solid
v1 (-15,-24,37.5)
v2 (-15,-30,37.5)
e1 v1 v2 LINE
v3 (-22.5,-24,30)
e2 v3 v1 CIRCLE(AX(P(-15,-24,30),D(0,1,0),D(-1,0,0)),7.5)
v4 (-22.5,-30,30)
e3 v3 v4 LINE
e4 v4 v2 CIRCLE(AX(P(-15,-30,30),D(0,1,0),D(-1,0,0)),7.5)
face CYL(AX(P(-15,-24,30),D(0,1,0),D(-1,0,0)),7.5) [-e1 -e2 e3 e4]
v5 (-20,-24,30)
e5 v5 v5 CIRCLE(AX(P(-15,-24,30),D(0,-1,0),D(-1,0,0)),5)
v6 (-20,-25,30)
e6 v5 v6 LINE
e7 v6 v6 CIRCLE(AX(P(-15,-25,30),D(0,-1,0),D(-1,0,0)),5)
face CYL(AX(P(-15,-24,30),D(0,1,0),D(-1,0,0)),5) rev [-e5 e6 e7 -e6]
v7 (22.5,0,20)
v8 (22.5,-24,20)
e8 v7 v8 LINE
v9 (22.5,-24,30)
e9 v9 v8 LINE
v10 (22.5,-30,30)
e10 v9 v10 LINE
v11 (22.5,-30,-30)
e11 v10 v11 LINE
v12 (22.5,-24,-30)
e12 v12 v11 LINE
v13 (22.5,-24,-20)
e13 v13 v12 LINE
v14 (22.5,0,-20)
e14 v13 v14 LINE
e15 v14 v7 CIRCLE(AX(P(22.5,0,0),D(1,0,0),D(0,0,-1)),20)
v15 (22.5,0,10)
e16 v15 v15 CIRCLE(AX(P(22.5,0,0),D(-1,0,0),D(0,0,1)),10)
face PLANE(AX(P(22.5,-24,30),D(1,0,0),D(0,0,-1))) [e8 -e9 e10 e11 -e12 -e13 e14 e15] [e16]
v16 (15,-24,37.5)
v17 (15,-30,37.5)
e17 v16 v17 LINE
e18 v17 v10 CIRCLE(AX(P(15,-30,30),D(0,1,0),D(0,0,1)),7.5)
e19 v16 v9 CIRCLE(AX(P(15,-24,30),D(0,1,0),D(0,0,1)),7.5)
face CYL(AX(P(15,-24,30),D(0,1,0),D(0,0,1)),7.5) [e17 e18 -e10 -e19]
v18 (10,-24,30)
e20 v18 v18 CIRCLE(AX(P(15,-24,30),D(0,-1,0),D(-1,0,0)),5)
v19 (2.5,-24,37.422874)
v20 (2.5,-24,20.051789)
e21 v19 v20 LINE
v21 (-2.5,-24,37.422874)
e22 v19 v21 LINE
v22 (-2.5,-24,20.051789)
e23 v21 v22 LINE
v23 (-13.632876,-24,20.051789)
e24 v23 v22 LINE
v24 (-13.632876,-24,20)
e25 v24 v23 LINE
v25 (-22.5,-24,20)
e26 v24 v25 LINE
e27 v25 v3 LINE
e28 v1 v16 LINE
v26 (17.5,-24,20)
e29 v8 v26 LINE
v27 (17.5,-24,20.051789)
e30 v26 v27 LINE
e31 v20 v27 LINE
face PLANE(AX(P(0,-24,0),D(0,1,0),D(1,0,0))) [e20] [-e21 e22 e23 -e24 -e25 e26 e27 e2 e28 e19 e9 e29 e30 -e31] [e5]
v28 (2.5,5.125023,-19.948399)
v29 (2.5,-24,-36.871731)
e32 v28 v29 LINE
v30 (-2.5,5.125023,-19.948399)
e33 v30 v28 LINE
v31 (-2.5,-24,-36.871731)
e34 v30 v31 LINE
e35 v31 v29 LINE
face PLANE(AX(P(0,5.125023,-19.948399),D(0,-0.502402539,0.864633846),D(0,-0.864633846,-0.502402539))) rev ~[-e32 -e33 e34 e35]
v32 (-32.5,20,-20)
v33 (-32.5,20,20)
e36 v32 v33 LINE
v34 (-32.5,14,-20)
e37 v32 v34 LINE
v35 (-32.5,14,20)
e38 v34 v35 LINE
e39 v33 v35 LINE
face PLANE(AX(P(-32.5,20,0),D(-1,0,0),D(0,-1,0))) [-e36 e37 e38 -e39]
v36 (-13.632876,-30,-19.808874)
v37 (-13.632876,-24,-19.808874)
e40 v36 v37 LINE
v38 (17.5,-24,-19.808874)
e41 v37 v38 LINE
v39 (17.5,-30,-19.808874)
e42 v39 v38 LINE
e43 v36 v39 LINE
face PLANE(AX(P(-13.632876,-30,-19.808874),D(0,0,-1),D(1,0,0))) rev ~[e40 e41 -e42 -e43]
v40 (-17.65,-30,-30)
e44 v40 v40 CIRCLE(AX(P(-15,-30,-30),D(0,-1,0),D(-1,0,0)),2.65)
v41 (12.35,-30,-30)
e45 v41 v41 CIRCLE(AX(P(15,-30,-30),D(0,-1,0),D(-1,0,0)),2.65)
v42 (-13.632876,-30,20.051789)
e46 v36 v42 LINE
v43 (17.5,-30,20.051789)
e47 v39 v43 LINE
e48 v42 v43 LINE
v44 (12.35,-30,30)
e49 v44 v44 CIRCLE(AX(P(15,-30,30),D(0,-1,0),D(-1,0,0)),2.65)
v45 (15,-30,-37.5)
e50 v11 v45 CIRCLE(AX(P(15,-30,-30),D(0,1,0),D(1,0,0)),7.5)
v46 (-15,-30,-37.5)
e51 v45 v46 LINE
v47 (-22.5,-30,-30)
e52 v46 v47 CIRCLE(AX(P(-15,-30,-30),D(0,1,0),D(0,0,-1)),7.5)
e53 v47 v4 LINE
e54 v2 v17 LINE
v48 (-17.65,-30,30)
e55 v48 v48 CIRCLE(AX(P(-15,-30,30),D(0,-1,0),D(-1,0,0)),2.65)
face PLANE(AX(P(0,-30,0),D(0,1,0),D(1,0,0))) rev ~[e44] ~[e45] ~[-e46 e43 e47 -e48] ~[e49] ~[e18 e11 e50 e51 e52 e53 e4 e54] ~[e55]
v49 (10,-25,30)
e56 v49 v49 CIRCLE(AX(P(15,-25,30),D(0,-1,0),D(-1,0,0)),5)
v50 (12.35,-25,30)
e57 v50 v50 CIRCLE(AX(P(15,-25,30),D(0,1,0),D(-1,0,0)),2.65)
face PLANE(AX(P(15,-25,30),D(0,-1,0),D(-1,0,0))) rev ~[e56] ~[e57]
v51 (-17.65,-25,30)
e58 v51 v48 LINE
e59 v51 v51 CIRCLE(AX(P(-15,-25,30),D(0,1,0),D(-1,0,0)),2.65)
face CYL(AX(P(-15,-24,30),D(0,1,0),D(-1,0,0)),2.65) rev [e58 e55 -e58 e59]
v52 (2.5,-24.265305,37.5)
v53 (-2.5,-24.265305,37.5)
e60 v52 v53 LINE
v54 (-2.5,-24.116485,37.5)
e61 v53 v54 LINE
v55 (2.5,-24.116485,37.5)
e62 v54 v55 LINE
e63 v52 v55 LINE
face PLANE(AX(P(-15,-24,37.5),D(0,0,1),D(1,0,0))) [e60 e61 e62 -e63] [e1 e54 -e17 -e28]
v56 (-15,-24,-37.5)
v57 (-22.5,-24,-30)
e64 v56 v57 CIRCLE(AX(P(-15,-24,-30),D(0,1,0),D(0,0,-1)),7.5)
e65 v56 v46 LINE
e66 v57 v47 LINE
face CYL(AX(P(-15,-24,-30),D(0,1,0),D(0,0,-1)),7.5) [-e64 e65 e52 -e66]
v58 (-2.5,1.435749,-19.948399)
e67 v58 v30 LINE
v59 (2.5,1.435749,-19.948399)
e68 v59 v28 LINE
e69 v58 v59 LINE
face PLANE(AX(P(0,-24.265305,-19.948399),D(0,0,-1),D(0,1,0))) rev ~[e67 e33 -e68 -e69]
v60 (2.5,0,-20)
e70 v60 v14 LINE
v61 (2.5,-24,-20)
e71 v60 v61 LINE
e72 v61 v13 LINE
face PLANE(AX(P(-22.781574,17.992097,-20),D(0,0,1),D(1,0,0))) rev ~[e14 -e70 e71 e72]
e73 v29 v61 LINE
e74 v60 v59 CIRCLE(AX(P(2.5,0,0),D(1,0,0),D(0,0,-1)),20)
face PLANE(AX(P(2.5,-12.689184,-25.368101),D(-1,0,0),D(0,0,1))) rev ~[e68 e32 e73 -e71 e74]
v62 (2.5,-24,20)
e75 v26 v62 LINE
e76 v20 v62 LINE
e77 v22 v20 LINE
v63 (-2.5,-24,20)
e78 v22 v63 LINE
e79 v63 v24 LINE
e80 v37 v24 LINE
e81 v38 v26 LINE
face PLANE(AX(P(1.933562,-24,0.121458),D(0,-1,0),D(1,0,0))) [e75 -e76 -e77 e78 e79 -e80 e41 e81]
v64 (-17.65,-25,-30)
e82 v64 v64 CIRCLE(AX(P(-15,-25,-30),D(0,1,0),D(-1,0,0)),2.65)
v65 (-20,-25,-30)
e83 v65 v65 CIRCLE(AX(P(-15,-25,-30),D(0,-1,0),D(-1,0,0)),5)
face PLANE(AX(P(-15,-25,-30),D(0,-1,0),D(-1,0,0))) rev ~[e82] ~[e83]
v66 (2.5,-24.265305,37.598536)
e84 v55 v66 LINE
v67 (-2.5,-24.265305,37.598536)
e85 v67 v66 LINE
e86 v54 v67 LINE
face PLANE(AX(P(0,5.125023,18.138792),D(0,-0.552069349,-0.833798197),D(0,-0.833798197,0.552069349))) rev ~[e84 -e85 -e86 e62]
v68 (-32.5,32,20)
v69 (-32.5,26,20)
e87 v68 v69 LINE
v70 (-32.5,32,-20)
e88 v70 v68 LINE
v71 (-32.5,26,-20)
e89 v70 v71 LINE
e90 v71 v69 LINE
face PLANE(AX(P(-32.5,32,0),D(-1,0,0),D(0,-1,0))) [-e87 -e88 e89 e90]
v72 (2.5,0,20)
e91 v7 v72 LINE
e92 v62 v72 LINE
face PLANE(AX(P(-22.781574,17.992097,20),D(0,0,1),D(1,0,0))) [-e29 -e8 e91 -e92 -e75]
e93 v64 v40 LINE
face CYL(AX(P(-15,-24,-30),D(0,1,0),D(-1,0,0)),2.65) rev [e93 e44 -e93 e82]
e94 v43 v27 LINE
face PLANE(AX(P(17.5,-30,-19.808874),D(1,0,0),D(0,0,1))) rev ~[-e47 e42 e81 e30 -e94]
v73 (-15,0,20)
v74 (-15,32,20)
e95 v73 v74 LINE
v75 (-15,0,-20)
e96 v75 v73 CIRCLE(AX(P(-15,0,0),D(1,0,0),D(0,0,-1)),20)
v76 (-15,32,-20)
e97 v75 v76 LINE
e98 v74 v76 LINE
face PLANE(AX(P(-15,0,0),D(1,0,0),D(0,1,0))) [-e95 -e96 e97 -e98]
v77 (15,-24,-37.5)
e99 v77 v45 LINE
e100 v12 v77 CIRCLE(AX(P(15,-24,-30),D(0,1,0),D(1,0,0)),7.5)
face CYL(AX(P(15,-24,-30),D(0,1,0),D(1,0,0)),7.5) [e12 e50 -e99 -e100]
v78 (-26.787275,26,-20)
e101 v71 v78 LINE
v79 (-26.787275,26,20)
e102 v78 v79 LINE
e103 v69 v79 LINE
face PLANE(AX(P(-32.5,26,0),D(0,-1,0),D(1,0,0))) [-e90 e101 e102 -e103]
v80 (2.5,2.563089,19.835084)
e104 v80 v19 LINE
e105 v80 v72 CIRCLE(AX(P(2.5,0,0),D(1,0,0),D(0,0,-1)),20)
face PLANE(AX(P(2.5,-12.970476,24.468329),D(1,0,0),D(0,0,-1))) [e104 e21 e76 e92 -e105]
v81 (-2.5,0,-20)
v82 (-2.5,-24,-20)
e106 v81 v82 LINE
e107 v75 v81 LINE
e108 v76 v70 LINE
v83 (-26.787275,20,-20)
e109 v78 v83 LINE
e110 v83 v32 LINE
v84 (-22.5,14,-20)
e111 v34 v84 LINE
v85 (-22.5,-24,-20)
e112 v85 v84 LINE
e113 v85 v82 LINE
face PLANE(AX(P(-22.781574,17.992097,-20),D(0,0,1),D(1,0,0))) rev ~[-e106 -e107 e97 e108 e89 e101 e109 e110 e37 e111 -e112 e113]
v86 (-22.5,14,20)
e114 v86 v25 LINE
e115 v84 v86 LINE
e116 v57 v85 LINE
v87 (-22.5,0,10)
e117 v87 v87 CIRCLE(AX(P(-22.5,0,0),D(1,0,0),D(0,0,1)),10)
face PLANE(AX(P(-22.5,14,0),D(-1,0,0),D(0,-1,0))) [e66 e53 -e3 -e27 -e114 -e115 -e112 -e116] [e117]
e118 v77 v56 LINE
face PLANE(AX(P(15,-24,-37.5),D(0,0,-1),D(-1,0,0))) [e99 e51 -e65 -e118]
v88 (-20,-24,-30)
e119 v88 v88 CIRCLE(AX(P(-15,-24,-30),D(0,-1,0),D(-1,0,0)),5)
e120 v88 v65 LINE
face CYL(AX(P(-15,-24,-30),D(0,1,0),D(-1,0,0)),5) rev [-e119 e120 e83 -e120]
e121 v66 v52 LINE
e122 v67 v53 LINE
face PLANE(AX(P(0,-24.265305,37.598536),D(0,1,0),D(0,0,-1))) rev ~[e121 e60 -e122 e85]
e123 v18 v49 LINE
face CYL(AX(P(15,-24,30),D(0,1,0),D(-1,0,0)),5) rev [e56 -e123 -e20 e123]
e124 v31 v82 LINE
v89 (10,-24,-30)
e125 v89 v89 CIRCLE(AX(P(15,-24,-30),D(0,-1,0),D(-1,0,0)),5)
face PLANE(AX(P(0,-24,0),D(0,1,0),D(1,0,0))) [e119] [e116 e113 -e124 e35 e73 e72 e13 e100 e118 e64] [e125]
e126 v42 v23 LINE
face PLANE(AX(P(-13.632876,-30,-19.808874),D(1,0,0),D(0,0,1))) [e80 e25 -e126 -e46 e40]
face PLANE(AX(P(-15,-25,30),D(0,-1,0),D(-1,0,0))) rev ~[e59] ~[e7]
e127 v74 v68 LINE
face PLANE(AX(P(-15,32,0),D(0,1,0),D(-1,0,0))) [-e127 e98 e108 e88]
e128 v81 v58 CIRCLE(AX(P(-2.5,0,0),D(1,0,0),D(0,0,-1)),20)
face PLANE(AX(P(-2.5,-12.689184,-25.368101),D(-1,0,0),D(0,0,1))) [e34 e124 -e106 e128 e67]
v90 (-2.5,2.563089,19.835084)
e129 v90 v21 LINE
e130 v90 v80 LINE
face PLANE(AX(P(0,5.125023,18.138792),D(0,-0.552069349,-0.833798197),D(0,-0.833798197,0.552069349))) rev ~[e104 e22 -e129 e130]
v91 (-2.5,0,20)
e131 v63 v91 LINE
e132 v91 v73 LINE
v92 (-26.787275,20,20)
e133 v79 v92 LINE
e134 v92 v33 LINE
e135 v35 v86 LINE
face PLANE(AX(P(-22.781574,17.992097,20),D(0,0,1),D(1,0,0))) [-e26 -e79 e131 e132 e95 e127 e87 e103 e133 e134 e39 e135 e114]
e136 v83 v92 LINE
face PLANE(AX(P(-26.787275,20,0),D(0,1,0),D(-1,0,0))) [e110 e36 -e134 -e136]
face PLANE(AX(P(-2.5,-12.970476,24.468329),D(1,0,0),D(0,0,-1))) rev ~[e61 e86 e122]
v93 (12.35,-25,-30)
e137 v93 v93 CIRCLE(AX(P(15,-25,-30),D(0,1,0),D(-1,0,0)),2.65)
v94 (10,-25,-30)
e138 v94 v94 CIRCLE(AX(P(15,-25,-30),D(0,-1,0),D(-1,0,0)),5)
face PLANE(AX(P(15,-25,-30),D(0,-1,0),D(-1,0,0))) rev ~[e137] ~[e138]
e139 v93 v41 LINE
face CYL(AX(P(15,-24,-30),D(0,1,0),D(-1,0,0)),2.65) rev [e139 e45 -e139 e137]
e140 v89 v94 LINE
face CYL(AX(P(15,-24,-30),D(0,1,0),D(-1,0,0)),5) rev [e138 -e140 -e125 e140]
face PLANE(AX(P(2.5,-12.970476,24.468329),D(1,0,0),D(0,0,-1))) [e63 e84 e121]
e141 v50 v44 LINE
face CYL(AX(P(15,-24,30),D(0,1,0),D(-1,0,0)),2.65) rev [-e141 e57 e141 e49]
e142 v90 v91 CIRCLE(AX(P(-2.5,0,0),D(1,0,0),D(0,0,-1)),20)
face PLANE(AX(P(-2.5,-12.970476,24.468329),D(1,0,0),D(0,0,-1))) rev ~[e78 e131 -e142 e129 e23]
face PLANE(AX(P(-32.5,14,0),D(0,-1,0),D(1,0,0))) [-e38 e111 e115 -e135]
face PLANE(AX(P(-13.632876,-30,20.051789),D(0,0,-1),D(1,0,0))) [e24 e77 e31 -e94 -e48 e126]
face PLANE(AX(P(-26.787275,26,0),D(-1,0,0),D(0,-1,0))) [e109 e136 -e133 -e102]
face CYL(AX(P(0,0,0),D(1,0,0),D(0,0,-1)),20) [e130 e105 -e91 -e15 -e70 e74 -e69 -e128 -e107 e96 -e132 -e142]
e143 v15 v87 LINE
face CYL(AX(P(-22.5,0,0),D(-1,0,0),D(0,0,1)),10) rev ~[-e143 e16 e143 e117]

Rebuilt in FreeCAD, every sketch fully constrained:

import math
import FreeCAD as App
import Part
import Sketcher
Q = App.Units.Quantity

doc = App.newDocument("Part")
body = doc.addObject("PartDesign::Body", "Body")

# Sketch on YZ plane
sketch1 = body.newObject("Sketcher::SketchObject", "Sketch")
sketch1.AttachmentSupport = (doc.getObject("YZ_Plane"), [""])
sketch1.MapMode = "FlatFace"
sketch1.addGeometry([
    Part.LineSegment(App.Vector(-24, 20, 0), App.Vector(-24, -20, 0)),  # 0
    Part.LineSegment(App.Vector(-24, -20, 0), App.Vector(0, -20, 0)),  # 1
    Part.ArcOfCircle(Part.Circle(App.Vector(0, 0, 0), App.Vector(0, 0, 1), 20), math.radians(-90), math.radians(90)),  # 2
    Part.LineSegment(App.Vector(0, 20, 0), App.Vector(-24, 20, 0)),  # 3
    Part.Circle(App.Vector(0, 0, 0), App.Vector(0, 0, 1), 10),  # 4
], False)
sketch1.addConstraint([
    Sketcher.Constraint("Coincident", 0, 2, 1, 1),
    Sketcher.Constraint("Tangent", 1, 2, 2, 1),
    Sketcher.Constraint("Tangent", 2, 2, 3, 1),
    Sketcher.Constraint("Coincident", 3, 2, 0, 1),
    Sketcher.Constraint("Vertical", 0),
    Sketcher.Constraint("Horizontal", 1),
    Sketcher.Constraint("Horizontal", 3),
    Sketcher.Constraint("Coincident", 2, 3, -1, 1),
    Sketcher.Constraint("Coincident", 4, 3, -1, 1),
    Sketcher.Constraint("Diameter", 4, Q("20 mm")),
    Sketcher.Constraint("Radius", 2, Q("20 mm")),
    Sketcher.Constraint("DistanceX", 1, 1, 1, 2, Q("24 mm")),
])
pad1 = body.newObject("PartDesign::Pad", "Pad")
pad1.Profile = sketch1
pad1.Length = 45
pad1.Midplane = True

# Sketch on XZ plane
sketch2 = body.newObject("Sketcher::SketchObject", "Sketch001")
sketch2.AttachmentSupport = (doc.getObject("XZ_Plane"), [""])
sketch2.MapMode = "FlatFace"
sketch2.AttachmentOffset = App.Placement(App.Vector(0, 0, 24), App.Rotation())
sketch2.addGeometry([
    Part.LineSegment(App.Vector(-22.5, 30, 0), App.Vector(-22.5, -30, 0)),  # 0
    Part.ArcOfCircle(Part.Circle(App.Vector(-15, -30, 0), App.Vector(0, 0, 1), 7.5), math.radians(180), math.radians(270)),  # 1
    Part.LineSegment(App.Vector(-15, -37.5, 0), App.Vector(15, -37.5, 0)),  # 2
    Part.ArcOfCircle(Part.Circle(App.Vector(15, -30, 0), App.Vector(0, 0, 1), 7.5), math.radians(-90), math.radians(0)),  # 3
    Part.LineSegment(App.Vector(22.5, -30, 0), App.Vector(22.5, 30, 0)),  # 4
    Part.ArcOfCircle(Part.Circle(App.Vector(15, 30, 0), App.Vector(0, 0, 1), 7.5), math.radians(0), math.radians(90)),  # 5
    Part.LineSegment(App.Vector(15, 37.5, 0), App.Vector(-15, 37.5, 0)),  # 6
    Part.ArcOfCircle(Part.Circle(App.Vector(-15, 30, 0), App.Vector(0, 0, 1), 7.5), math.radians(90), math.radians(180)),  # 7
    Part.Circle(App.Vector(-15, 30, 0), App.Vector(0, 0, 1), 2.6),  # 8
    Part.Circle(App.Vector(15, 30, 0), App.Vector(0, 0, 1), 2.6),  # 9
    Part.Circle(App.Vector(-15, -30, 0), App.Vector(0, 0, 1), 2.6),  # 10
    Part.Circle(App.Vector(15, -30, 0), App.Vector(0, 0, 1), 2.6),  # 11
], False)
sketch2.addConstraint([
    Sketcher.Constraint("Tangent", 0, 2, 1, 1),
    Sketcher.Constraint("Tangent", 1, 2, 2, 1),
    Sketcher.Constraint("Tangent", 2, 2, 3, 1),
    Sketcher.Constraint("Tangent", 3, 2, 4, 1),
    Sketcher.Constraint("Tangent", 4, 2, 5, 1),
    Sketcher.Constraint("Tangent", 5, 2, 6, 1),
    Sketcher.Constraint("Tangent", 6, 2, 7, 1),
    Sketcher.Constraint("Tangent", 7, 2, 0, 1),
    Sketcher.Constraint("Vertical", 0),
    Sketcher.Constraint("Horizontal", 2),
    Sketcher.Constraint("Vertical", 4),
    Sketcher.Constraint("Horizontal", 6),
    Sketcher.Constraint("Coincident", 8, 3, 7, 3),
    Sketcher.Constraint("Coincident", 9, 3, 5, 3),
    Sketcher.Constraint("Coincident", 10, 3, 1, 3),
    Sketcher.Constraint("Coincident", 11, 3, 3, 3),
    Sketcher.Constraint("Equal", 1, 3),
    Sketcher.Constraint("Equal", 3, 5),
    Sketcher.Constraint("Equal", 5, 7),
    Sketcher.Constraint("Equal", 8, 9),
    Sketcher.Constraint("Equal", 9, 10),
    Sketcher.Constraint("Equal", 10, 11),
    Sketcher.Constraint("Symmetric", 1, 3, 5, 3, -1, 1),
    Sketcher.Constraint("Diameter", 8, Q("5.3 mm")),
    Sketcher.Constraint("Radius", 1, Q("7.5 mm")),
    Sketcher.Constraint("DistanceX", 2, 1, 2, 2, Q("30 mm")),
    Sketcher.Constraint("DistanceY", 0, 2, 0, 1, Q("60 mm")),
])
pad2 = body.newObject("PartDesign::Pad", "Pad001")
pad2.Profile = sketch2
pad2.Length = 6

# Sketch on XZ plane
sketch3 = body.newObject("Sketcher::SketchObject", "Sketch002")
sketch3.AttachmentSupport = (doc.getObject("XZ_Plane"), [""])
sketch3.MapMode = "FlatFace"
sketch3.AttachmentOffset = App.Placement(App.Vector(0, 0, 24), App.Rotation())
sketch3.addGeometry([
    Part.Circle(App.Vector(-15, -30, 0), App.Vector(0, 0, 1), 5),
    Part.Circle(App.Vector(15, -30, 0), App.Vector(0, 0, 1), 5),
    Part.Circle(App.Vector(-15, 30, 0), App.Vector(0, 0, 1), 5),
    Part.Circle(App.Vector(15, 30, 0), App.Vector(0, 0, 1), 5),
], False)
sketch3.addConstraint([
    Sketcher.Constraint("Equal", 0, 1),
    Sketcher.Constraint("Equal", 1, 2),
    Sketcher.Constraint("Equal", 2, 3),
    Sketcher.Constraint("Symmetric", 1, 3, 2, 3, -1, 1),
    Sketcher.Constraint("Symmetric", 0, 3, 3, 3, -1, 1),
    Sketcher.Constraint("Symmetric", 0, 3, 1, 3, -2),
    Sketcher.Constraint("Diameter", 0, Q("10 mm")),
    Sketcher.Constraint("DistanceX", 0, 3, -1, 1, Q("15 mm")),
    Sketcher.Constraint("DistanceY", 0, 3, -1, 1, Q("30 mm")),
])
pocket1 = body.newObject("PartDesign::Pocket", "Pocket")
pocket1.Profile = sketch3
pocket1.Length = 1
pocket1.Reversed = True

# Sketch on XY plane
sketch4 = body.newObject("Sketcher::SketchObject", "Sketch003")
sketch4.AttachmentSupport = (doc.getObject("XY_Plane"), [""])
sketch4.MapMode = "FlatFace"
sketch4.addGeometry([
    Part.LineSegment(App.Vector(-15, 32, 0), App.Vector(-32, 32, 0)),  # 0
    Part.LineSegment(App.Vector(-32, 32, 0), App.Vector(-32, 26, 0)),  # 1
    Part.LineSegment(App.Vector(-32, 26, 0), App.Vector(-27, 26, 0)),  # 2
    Part.LineSegment(App.Vector(-27, 26, 0), App.Vector(-27, 20, 0)),  # 3
    Part.LineSegment(App.Vector(-27, 20, 0), App.Vector(-32, 20, 0)),  # 4
    Part.LineSegment(App.Vector(-32, 20, 0), App.Vector(-32, 14, 0)),  # 5
    Part.LineSegment(App.Vector(-32, 14, 0), App.Vector(-22, 14, 0)),  # 6
    Part.LineSegment(App.Vector(-22, 14, 0), App.Vector(-22, 0, 0)),  # 7
    Part.LineSegment(App.Vector(-22, 0, 0), App.Vector(-15, 0, 0)),  # 8
    Part.LineSegment(App.Vector(-15, 0, 0), App.Vector(-15, 32, 0)),  # 9
], False)
sketch4.addConstraint([
    Sketcher.Constraint("Coincident", 0, 2, 1, 1),
    Sketcher.Constraint("Coincident", 1, 2, 2, 1),
    Sketcher.Constraint("Coincident", 2, 2, 3, 1),
    Sketcher.Constraint("Coincident", 3, 2, 4, 1),
    Sketcher.Constraint("Coincident", 4, 2, 5, 1),
    Sketcher.Constraint("Coincident", 5, 2, 6, 1),
    Sketcher.Constraint("Coincident", 6, 2, 7, 1),
    Sketcher.Constraint("Coincident", 7, 2, 8, 1),
    Sketcher.Constraint("Coincident", 8, 2, 9, 1),
    Sketcher.Constraint("Coincident", 9, 2, 0, 1),
    Sketcher.Constraint("Horizontal", 0),
    Sketcher.Constraint("Vertical", 1),
    Sketcher.Constraint("Horizontal", 2),
    Sketcher.Constraint("Vertical", 3),
    Sketcher.Constraint("Horizontal", 4),
    Sketcher.Constraint("Vertical", 5),
    Sketcher.Constraint("Horizontal", 6),
    Sketcher.Constraint("Vertical", 7),
    Sketcher.Constraint("Horizontal", 8),
    Sketcher.Constraint("Vertical", 9),
    Sketcher.Constraint("PointOnObject", 7, 2, -1),
    Sketcher.Constraint("Vertical", 1, 2, 4, 2),
    Sketcher.Constraint("Equal", 1, 3),
    Sketcher.Constraint("Equal", 3, 5),
    Sketcher.Constraint("DistanceX", 6, 1, 6, 2, Q("10 mm")),
    Sketcher.Constraint("DistanceY", 1, 2, 1, 1, Q("6 mm")),
    Sketcher.Constraint("DistanceY", 7, 2, 7, 1, Q("14 mm")),
    Sketcher.Constraint("DistanceX", 0, 2, 0, 1, Q("17.5 mm")),
    Sketcher.Constraint("DistanceX", 8, 2, -1, 1, Q("15 mm")),
    Sketcher.Constraint("DistanceX", 2, 1, 2, 2, Q("5.712725 mm")),
])
pad3 = body.newObject("PartDesign::Pad", "Pad002")
pad3.Profile = sketch4
pad3.Length = 40
pad3.Midplane = True

# Sketch on YZ plane
sketch5 = body.newObject("Sketcher::SketchObject", "Sketch004")
sketch5.AttachmentSupport = (doc.getObject("YZ_Plane"), [""])
sketch5.MapMode = "FlatFace"
sketch5.AttachmentOffset = App.Placement(App.Vector(0, 0, -22.5), App.Rotation())
sketch5.addGeometry(Part.Circle(App.Vector(0, 0, 0), App.Vector(0, 0, 1), 10), False)
sketch5.addConstraint([
    Sketcher.Constraint("Coincident", 0, 3, -1, 1),
    Sketcher.Constraint("Diameter", 0, Q("20 mm")),
])
pocket2 = body.newObject("PartDesign::Pocket", "Pocket001")
pocket2.Profile = sketch5
pocket2.Length = 45
pocket2.Reversed = True

# Sketch on YZ plane
sketch6 = body.newObject("Sketcher::SketchObject", "Sketch005")
sketch6.AttachmentSupport = (doc.getObject("YZ_Plane"), [""])
sketch6.MapMode = "FlatFace"
sketch6.addGeometry([
    Part.LineSegment(App.Vector(5, 18, 0), App.Vector(-24, 38, 0)),  # 0
    Part.LineSegment(App.Vector(-24, 38, 0), App.Vector(-24, 18, 0)),  # 1
    Part.LineSegment(App.Vector(-24, 18, 0), App.Vector(5, 18, 0)),  # 2
    Part.LineSegment(App.Vector(-24, -20, 0), App.Vector(-24, -37, 0)),  # 3
    Part.LineSegment(App.Vector(-24, -37, 0), App.Vector(5, -20, 0)),  # 4
    Part.LineSegment(App.Vector(5, -20, 0), App.Vector(-24, -20, 0)),  # 5
], False)
sketch6.addConstraint([
    Sketcher.Constraint("Coincident", 0, 2, 1, 1),
    Sketcher.Constraint("Coincident", 1, 2, 2, 1),
    Sketcher.Constraint("Coincident", 2, 2, 0, 1),
    Sketcher.Constraint("Coincident", 3, 2, 4, 1),
    Sketcher.Constraint("Coincident", 4, 2, 5, 1),
    Sketcher.Constraint("Coincident", 5, 2, 3, 1),
    Sketcher.Constraint("Vertical", 1),
    Sketcher.Constraint("Horizontal", 2),
    Sketcher.Constraint("Vertical", 3),
    Sketcher.Constraint("Horizontal", 5),
    Sketcher.Constraint("Vertical", 1, 2, 3, 2),
    Sketcher.Constraint("Vertical", 2, 2, 4, 2),
    Sketcher.Constraint("DistanceX", 2, 1, 2, 2, Q("29.390329 mm")),
    Sketcher.Constraint("DistanceY", 3, 2, 3, 1, Q("17.07749 mm")),
    Sketcher.Constraint("DistanceY", 4, 2, -1, 1, Q("19.948399 mm")),
    Sketcher.Constraint("Distance", 0, Q("35.248732 mm")),
    Sketcher.Constraint("DistanceY", -1, 1, 1, 2, Q("18.138792 mm")),
    Sketcher.Constraint("DistanceX", 0, 2, -1, 1, Q("24.265305 mm")),
])
pad4 = body.newObject("PartDesign::Pad", "Pad003")
pad4.Profile = sketch6
pad4.Length = 5
pad4.Midplane = True

# Sketch on XZ plane
sketch7 = body.newObject("Sketcher::SketchObject", "Sketch006")
sketch7.AttachmentSupport = (doc.getObject("XZ_Plane"), [""])
sketch7.MapMode = "FlatFace"
sketch7.AttachmentOffset = App.Placement(App.Vector(0, 0, 30), App.Rotation())
sketch7.addGeometry([
    Part.LineSegment(App.Vector(-14, 20, 0), App.Vector(-14, -20, 0)),
    Part.LineSegment(App.Vector(-14, -20, 0), App.Vector(18, -20, 0)),
    Part.LineSegment(App.Vector(18, -20, 0), App.Vector(18, 20, 0)),
    Part.LineSegment(App.Vector(18, 20, 0), App.Vector(-14, 20, 0)),
], False)
sketch7.addConstraint([
    Sketcher.Constraint("Coincident", 0, 2, 1, 1),
    Sketcher.Constraint("Coincident", 1, 2, 2, 1),
    Sketcher.Constraint("Coincident", 2, 2, 3, 1),
    Sketcher.Constraint("Coincident", 3, 2, 0, 1),
    Sketcher.Constraint("Vertical", 0),
    Sketcher.Constraint("Horizontal", 1),
    Sketcher.Constraint("Vertical", 2),
    Sketcher.Constraint("Horizontal", 3),
    Sketcher.Constraint("DistanceX", -1, 1, 1, 2, Q("17.5 mm")),
    Sketcher.Constraint("DistanceX", 1, 1, 1, 2, Q("31.132876 mm")),
    Sketcher.Constraint("DistanceY", 0, 2, 0, 1, Q("39.860663 mm")),
    Sketcher.Constraint("DistanceY", -1, 1, 2, 2, Q("20.051789 mm")),
])
pocket3 = body.newObject("PartDesign::Pocket", "Pocket002")
pocket3.Profile = sketch7
pocket3.Length = 6

doc.recompute()
